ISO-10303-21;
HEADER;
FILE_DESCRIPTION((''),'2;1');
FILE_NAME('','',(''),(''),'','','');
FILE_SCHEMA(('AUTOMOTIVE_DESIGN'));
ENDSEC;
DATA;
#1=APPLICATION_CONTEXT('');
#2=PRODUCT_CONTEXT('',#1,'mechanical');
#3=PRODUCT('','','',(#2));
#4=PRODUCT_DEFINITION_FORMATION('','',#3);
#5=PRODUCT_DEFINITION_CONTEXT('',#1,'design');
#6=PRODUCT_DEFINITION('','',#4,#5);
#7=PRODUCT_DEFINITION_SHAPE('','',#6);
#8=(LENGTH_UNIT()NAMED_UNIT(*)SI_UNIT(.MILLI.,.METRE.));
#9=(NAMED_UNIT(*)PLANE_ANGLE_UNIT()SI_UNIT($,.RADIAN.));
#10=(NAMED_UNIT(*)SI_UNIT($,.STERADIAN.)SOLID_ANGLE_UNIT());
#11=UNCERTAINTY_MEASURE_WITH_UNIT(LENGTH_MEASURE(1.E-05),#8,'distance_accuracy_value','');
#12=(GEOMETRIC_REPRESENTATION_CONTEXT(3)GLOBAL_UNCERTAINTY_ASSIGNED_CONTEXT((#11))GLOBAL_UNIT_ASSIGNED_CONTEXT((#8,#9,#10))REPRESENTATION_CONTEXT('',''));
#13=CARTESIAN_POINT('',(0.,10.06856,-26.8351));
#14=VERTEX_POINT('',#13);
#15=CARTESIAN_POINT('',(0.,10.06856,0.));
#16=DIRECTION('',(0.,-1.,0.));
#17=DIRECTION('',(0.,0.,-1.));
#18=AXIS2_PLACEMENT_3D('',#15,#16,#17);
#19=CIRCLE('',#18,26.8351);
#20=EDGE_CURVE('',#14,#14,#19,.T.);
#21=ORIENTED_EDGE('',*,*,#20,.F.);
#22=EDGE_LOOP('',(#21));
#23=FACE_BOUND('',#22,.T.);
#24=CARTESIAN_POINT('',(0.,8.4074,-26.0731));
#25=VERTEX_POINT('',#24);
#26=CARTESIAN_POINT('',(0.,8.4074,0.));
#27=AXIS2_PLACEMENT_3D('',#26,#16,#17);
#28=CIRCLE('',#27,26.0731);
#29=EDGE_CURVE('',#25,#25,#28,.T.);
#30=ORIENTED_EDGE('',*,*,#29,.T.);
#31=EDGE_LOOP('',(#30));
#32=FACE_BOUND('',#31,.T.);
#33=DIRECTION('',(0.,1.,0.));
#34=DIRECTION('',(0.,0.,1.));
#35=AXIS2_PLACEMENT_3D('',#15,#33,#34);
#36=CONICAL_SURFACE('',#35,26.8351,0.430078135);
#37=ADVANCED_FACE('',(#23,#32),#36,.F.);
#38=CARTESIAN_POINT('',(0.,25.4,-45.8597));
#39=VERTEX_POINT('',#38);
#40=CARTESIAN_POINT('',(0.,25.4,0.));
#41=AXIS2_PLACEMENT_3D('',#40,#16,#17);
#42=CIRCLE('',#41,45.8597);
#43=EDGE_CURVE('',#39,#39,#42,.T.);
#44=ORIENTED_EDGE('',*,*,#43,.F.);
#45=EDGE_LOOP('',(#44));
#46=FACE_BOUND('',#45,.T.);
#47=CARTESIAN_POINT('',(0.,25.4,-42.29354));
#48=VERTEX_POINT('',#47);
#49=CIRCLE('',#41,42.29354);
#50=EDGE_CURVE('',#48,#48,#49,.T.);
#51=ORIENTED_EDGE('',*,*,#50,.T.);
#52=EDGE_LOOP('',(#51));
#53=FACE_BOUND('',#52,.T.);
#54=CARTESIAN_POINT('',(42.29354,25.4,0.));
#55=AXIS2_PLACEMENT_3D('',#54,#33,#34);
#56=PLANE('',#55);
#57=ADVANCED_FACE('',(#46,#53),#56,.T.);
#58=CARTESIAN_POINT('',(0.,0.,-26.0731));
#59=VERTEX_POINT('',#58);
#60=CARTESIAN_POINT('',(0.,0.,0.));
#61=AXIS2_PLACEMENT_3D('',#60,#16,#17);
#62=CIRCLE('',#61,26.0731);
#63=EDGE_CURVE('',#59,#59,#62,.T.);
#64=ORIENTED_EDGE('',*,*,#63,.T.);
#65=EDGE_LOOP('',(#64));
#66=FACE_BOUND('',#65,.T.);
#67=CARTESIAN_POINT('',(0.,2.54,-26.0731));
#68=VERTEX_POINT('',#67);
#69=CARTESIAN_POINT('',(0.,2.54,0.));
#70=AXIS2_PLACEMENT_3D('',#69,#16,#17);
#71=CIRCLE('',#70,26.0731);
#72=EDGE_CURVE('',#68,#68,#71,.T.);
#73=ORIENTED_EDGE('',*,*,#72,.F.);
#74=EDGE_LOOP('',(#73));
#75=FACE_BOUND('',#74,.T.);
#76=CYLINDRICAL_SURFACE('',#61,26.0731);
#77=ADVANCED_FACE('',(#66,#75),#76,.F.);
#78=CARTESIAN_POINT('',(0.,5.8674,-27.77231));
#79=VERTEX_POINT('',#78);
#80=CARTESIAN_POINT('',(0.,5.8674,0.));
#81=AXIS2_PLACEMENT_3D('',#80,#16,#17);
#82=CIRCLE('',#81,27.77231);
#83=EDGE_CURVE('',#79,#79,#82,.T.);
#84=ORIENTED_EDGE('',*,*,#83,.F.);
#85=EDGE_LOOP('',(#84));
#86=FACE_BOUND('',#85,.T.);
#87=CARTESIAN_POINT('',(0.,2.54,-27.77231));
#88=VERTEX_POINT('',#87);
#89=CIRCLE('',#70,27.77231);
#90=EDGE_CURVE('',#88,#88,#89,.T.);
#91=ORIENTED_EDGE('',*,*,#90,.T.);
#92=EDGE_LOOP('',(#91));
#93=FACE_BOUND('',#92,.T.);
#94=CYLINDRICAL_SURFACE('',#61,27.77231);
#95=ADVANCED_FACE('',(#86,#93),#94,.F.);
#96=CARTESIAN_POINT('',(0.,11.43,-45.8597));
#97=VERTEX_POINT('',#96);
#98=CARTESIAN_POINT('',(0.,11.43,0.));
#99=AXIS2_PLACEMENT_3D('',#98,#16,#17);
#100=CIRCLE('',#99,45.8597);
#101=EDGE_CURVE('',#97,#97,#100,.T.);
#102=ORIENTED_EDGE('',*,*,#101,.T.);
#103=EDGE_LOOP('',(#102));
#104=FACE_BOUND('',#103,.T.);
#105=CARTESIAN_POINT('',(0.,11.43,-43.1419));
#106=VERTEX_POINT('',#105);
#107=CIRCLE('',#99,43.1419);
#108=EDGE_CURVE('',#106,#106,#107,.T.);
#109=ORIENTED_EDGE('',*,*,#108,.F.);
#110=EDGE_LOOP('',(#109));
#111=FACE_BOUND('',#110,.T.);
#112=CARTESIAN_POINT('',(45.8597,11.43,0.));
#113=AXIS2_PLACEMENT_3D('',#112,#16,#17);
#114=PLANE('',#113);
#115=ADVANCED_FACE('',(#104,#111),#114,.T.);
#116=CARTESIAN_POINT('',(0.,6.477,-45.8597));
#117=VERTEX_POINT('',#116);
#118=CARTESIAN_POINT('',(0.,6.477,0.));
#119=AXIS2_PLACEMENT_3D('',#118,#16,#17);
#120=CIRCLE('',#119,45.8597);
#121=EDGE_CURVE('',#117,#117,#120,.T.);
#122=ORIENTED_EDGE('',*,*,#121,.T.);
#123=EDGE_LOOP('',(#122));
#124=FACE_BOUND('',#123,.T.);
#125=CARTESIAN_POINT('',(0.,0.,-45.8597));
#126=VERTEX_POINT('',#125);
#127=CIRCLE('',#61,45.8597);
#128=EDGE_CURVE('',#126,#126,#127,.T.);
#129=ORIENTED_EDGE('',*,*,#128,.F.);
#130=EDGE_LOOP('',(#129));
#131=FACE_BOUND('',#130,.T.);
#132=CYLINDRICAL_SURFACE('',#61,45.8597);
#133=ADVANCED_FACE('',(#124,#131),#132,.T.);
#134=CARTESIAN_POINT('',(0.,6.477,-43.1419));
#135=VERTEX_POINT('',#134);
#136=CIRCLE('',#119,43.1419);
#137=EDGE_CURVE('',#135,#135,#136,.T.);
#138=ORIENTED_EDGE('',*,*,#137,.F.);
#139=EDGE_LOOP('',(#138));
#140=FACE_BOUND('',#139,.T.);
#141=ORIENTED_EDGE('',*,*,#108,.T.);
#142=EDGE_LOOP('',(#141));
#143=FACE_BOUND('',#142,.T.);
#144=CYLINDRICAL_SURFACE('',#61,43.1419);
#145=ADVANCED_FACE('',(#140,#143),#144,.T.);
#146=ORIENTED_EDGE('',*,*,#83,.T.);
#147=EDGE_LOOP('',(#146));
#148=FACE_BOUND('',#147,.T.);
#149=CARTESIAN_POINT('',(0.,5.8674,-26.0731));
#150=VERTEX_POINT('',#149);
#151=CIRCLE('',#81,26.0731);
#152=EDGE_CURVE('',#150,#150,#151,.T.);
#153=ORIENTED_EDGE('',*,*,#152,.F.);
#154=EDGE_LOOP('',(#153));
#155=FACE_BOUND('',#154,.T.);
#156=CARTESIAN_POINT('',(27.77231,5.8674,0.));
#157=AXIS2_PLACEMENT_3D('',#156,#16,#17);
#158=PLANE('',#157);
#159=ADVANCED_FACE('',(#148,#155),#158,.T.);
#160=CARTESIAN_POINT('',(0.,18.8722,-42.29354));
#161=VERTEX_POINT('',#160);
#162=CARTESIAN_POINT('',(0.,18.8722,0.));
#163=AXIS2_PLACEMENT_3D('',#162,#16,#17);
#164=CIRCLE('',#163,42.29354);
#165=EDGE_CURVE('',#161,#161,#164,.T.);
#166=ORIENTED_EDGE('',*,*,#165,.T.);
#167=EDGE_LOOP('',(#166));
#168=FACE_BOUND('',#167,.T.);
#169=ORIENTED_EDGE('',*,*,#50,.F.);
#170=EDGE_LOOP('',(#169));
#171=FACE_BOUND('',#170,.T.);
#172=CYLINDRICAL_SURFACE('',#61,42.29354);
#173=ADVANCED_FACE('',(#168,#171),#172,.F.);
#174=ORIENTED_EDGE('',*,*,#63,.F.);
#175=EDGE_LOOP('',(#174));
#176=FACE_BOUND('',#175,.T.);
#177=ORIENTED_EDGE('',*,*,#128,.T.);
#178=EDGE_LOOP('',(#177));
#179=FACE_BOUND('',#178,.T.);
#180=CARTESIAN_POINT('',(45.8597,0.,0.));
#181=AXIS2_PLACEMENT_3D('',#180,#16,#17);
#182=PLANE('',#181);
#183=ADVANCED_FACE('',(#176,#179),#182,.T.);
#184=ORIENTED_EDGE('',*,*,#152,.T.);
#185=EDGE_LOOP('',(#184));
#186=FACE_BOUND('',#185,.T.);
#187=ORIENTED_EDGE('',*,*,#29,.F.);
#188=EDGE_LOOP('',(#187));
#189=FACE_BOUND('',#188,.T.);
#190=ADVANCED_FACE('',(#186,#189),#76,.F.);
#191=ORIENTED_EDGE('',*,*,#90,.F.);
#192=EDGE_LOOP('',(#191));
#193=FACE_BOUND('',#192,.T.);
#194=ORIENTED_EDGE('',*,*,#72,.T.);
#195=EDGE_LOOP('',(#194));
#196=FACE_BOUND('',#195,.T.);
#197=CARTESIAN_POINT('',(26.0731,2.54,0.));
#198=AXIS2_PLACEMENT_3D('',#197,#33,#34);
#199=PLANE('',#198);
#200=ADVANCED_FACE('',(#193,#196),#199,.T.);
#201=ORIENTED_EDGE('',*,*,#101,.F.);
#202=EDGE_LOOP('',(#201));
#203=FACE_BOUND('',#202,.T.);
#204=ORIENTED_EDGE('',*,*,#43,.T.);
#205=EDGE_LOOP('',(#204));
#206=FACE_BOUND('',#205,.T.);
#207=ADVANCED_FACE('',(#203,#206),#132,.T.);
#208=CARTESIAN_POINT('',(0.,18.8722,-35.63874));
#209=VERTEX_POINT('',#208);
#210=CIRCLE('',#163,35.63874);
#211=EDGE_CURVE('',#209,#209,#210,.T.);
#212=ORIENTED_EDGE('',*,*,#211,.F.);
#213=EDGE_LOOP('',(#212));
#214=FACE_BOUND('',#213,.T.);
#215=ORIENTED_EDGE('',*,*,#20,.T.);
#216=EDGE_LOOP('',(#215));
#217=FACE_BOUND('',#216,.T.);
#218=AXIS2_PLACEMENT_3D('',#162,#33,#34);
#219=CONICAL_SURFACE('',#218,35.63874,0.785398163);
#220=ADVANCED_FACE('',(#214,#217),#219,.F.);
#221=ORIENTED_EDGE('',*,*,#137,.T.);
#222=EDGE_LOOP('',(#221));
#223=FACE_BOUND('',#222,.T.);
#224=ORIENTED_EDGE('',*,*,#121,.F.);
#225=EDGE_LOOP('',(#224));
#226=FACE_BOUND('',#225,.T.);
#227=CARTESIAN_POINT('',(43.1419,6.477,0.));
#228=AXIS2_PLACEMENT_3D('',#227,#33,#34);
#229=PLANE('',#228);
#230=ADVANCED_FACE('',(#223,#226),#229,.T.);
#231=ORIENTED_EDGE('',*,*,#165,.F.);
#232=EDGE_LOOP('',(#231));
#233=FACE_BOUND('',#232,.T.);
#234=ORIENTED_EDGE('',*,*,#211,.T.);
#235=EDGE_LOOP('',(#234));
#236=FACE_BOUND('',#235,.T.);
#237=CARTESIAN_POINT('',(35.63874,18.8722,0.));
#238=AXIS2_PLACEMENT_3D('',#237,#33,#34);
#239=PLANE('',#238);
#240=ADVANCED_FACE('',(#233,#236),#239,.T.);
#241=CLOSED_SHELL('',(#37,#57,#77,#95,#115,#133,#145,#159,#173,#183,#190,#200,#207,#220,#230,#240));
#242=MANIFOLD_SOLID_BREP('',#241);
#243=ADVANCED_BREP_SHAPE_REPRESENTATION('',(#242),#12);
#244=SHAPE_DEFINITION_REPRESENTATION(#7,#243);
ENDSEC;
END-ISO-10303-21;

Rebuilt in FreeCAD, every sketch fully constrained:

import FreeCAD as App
import Part
import Sketcher
from FreeCAD import Vector
Q = App.Units.Quantity


def add_polygon(sketch, points):
    """Adds a closed chain of lines whose ends are joined by coincident constraints."""
    first, n = sketch.GeometryCount, len(points)
    for a, b in zip(points, points[1:] + points[:1]):
        sketch.addGeometry(Part.LineSegment(App.Vector(*a, 0), App.Vector(*b, 0)), False)
    for i in range(n):
        sketch.addConstraint(Sketcher.Constraint("Coincident", first + i, 2, first + (i + 1) % n, 1))

doc = App.newDocument("Part")
body = doc.addObject("PartDesign::Body", "Body")

# Sketch on XY plane
sketch1 = doc.addObject("Sketcher::SketchObject", "Sketch")
body.addObject(sketch1)
sketch1.AttachmentSupport = (doc.XY_Plane, [""])
sketch1.MapMode = "FlatFace"
add_polygon(sketch1, [(26.1, 2.5), (26.1, 0), (45.9, 0), (45.9, 6.5), (43.1, 6.5), (43.1, 11.4), (45.9, 11.4), (45.9, 25.4), (42.3, 25.4), (42.3, 18.9), (35.6, 18.9), (26.8, 10.1), (26.1, 8.4), (26.1, 5.9), (27.8, 5.9), (27.8, 2.5)])  # lines 0-15
sketch1.addConstraint(Sketcher.Constraint("Vertical", 0))
sketch1.addConstraint(Sketcher.Constraint("Horizontal", 1))
sketch1.addConstraint(Sketcher.Constraint("Vertical", 2))
sketch1.addConstraint(Sketcher.Constraint("Horizontal", 3))
sketch1.addConstraint(Sketcher.Constraint("Vertical", 4))
sketch1.addConstraint(Sketcher.Constraint("Horizontal", 5))
sketch1.addConstraint(Sketcher.Constraint("Vertical", 6))
sketch1.addConstraint(Sketcher.Constraint("Horizontal", 7))
sketch1.addConstraint(Sketcher.Constraint("Vertical", 8))
sketch1.addConstraint(Sketcher.Constraint("Horizontal", 9))
sketch1.addConstraint(Sketcher.Constraint("Vertical", 12))
sketch1.addConstraint(Sketcher.Constraint("Horizontal", 13))
sketch1.addConstraint(Sketcher.Constraint("Vertical", 14))
sketch1.addConstraint(Sketcher.Constraint("Horizontal", 15))
sketch1.addConstraint(Sketcher.Constraint("PointOnObject", 0, 2, -1))
sketch1.addConstraint(Sketcher.Constraint("Vertical", 2, 2, 5, 2))
sketch1.addConstraint(Sketcher.Constraint("Vertical", 0, 2, 11, 2))
sketch1.addConstraint(Sketcher.Constraint("Equal", 0, 12))
sketch1.addConstraint(Sketcher.Constraint("DistanceY", 0, 2, 0, 1, Q("0.1 in")))
sketch1.addConstraint(Sketcher.Constraint("DistanceY", -1, 1, 6, 2, Q("1 in")))
sketch1.addConstraint(Sketcher.Constraint("Angle", 10, Q("-135 deg")))
sketch1.addConstraint(Sketcher.Constraint("DistanceY", 6, 1, 6, 2, Q("0.55 in")))
sketch1.addConstraint(Sketcher.Constraint("DistanceX", 1, 1, 1, 2, Q("0.779 in")))
sketch1.addConstraint(Sketcher.Constraint("DistanceX", 3, 2, 3, 1, Q("0.107 in")))
sketch1.addConstraint(Sketcher.Constraint("DistanceX", 9, 2, 9, 1, Q("0.262 in")))
sketch1.addConstraint(Sketcher.Constraint("DistanceY", 2, 1, 2, 2, Q("0.255 in")))
sketch1.addConstraint(Sketcher.Constraint("DistanceY", 8, 2, 8, 1, Q("0.257 in")))
sketch1.addConstraint(Sketcher.Constraint("DistanceY", 14, 2, 14, 1, Q("0.131 in")))
sketch1.addConstraint(Sketcher.Constraint("DistanceX", 0, 2, 10, 2, Q("0.03 in")))
sketch1.addConstraint(Sketcher.Constraint("DistanceX", 7, 2, 7, 1, Q("0.1404 in")))
sketch1.addConstraint(Sketcher.Constraint("DistanceX", -1, 1, 0, 2, Q("1.0265 in")))
sketch1.addConstraint(Sketcher.Constraint("DistanceX", 13, 1, 13, 2, Q("1.69921 mm")))
revolution = doc.addObject("PartDesign::Revolution", "Revolution")
body.addObject(revolution)
revolution.Profile = sketch1
revolution.ReferenceAxis = (sketch1, ["V_Axis"])
revolution.Angle = 360

doc.recompute()
